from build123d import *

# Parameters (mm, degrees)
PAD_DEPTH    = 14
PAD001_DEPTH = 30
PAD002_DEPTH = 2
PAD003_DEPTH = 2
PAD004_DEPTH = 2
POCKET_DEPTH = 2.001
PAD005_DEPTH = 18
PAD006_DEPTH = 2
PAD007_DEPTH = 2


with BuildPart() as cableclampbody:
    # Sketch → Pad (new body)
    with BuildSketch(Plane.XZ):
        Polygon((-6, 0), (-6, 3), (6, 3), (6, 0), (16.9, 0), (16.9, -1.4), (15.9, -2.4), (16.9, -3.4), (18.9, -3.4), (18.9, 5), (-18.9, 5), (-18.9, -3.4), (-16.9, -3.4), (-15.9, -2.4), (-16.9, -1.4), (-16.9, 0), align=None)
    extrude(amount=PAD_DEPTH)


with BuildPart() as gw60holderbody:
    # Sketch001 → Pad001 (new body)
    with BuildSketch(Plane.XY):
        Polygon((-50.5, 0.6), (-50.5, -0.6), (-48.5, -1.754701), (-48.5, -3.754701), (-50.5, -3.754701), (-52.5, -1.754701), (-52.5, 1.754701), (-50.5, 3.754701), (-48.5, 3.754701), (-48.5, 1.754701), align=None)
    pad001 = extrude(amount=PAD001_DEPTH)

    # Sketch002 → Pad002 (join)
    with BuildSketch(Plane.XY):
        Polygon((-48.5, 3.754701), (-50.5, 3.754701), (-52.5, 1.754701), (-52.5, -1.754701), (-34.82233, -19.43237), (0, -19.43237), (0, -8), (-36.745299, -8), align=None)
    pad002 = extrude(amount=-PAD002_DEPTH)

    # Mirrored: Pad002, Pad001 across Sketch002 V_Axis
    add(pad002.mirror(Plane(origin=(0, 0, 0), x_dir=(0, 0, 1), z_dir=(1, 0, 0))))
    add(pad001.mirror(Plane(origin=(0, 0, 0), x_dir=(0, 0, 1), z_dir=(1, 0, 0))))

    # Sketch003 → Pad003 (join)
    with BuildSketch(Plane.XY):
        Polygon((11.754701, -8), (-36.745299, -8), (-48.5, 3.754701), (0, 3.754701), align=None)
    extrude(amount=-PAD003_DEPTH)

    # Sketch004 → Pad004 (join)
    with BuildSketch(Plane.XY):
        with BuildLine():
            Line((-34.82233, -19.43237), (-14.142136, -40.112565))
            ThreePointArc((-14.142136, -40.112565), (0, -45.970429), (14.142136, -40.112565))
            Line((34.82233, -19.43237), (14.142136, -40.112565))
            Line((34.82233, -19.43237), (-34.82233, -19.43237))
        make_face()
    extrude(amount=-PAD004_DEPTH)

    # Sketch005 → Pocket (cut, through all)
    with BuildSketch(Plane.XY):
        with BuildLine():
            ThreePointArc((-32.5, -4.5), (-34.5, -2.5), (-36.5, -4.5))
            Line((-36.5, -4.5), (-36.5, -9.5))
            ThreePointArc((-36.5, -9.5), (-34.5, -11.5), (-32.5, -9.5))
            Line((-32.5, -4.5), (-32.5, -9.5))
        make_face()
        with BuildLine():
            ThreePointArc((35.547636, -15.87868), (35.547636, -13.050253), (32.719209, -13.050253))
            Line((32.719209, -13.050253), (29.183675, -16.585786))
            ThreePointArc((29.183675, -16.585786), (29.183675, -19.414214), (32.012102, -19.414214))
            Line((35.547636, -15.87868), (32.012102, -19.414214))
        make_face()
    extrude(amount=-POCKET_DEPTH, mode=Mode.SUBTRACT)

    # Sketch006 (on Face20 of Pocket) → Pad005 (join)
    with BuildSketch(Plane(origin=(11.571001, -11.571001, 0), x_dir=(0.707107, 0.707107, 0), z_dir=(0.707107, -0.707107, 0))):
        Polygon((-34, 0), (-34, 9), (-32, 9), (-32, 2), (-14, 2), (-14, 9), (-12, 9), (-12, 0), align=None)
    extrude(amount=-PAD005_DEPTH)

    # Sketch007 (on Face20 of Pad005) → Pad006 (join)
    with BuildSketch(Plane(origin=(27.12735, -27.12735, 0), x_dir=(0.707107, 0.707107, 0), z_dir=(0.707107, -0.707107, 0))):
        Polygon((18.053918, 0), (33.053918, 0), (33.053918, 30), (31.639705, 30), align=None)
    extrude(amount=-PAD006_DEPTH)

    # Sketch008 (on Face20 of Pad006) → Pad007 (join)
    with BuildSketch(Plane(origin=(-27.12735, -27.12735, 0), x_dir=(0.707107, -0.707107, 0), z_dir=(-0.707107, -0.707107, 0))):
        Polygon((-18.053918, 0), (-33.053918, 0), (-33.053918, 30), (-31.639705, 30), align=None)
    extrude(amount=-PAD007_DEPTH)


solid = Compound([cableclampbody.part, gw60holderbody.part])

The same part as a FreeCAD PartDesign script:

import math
import FreeCAD as App
import Part
import Sketcher
from FreeCAD import Vector
Q = App.Units.Quantity

doc = App.newDocument("Part")
body = doc.addObject("PartDesign::Body", "Body")

# Sketch on XZ plane
sketch1 = doc.addObject("Sketcher::SketchObject", "Sketch")
body.addObject(sketch1)
sketch1.AttachmentSupport = (doc.XZ_Plane, [""])
sketch1.MapMode = "FlatFace"
sketch1.addGeometry([
    Part.LineSegment(Vector(-6, 0, 0), Vector(-6, 3, 0)),  # 0
    Part.LineSegment(Vector(-6, 3, 0), Vector(6, 3, 0)),  # 1
    Part.LineSegment(Vector(6, 3, 0), Vector(6, 0, 0)),  # 2
    Part.LineSegment(Vector(6, 0, 0), Vector(16.9, 0, 0)),  # 3
    Part.LineSegment(Vector(16.9, 0, 0), Vector(16.9, -1.4, 0)),  # 4
    Part.LineSegment(Vector(16.9, -1.4, 0), Vector(15.9, -2.4, 0)),  # 5
    Part.LineSegment(Vector(15.9, -2.4, 0), Vector(16.9, -3.4, 0)),  # 6
    Part.LineSegment(Vector(16.9, -3.4, 0), Vector(18.9, -3.4, 0)),  # 7
    Part.LineSegment(Vector(18.9, -3.4, 0), Vector(18.9, 5, 0)),  # 8
    Part.LineSegment(Vector(18.9, 5, 0), Vector(-18.9, 5, 0)),  # 9
    Part.LineSegment(Vector(-18.9, 5, 0), Vector(-18.9, -3.4, 0)),  # 10
    Part.LineSegment(Vector(-18.9, -3.4, 0), Vector(-16.9, -3.4, 0)),  # 11
    Part.LineSegment(Vector(-16.9, -3.4, 0), Vector(-15.9, -2.4, 0)),  # 12
    Part.LineSegment(Vector(-15.9, -2.4, 0), Vector(-16.9, -1.4, 0)),  # 13
    Part.LineSegment(Vector(-16.9, -1.4, 0), Vector(-16.9, 0, 0)),  # 14
    Part.LineSegment(Vector(-16.9, 0, 0), Vector(-6, 0, 0)),  # 15
], False)
sketch1.addConstraint([
    Sketcher.Constraint("Coincident", 0, 2, 1, 1),
    Sketcher.Constraint("Coincident", 1, 2, 2, 1),
    Sketcher.Constraint("Coincident", 2, 2, 3, 1),
    Sketcher.Constraint("Coincident", 3, 2, 4, 1),
    Sketcher.Constraint("Coincident", 4, 2, 5, 1),
    Sketcher.Constraint("Coincident", 5, 2, 6, 1),
    Sketcher.Constraint("Coincident", 6, 2, 7, 1),
    Sketcher.Constraint("Coincident", 7, 2, 8, 1),
    Sketcher.Constraint("Coincident", 8, 2, 9, 1),
    Sketcher.Constraint("Coincident", 9, 2, 10, 1),
    Sketcher.Constraint("Coincident", 10, 2, 11, 1),
    Sketcher.Constraint("Coincident", 11, 2, 12, 1),
    Sketcher.Constraint("Coincident", 12, 2, 13, 1),
    Sketcher.Constraint("Coincident", 13, 2, 14, 1),
    Sketcher.Constraint("Coincident", 14, 2, 15, 1),
    Sketcher.Constraint("Coincident", 15, 2, 0, 1),
    Sketcher.Constraint("Vertical", 0),
    Sketcher.Constraint("Horizontal", 1),
    Sketcher.Constraint("Vertical", 2),
    Sketcher.Constraint("Horizontal", 3),
    Sketcher.Constraint("Vertical", 4),
    Sketcher.Constraint("Horizontal", 7),
    Sketcher.Constraint("Vertical", 8),
    Sketcher.Constraint("Horizontal", 9),
    Sketcher.Constraint("Vertical", 10),
    Sketcher.Constraint("Horizontal", 11),
    Sketcher.Constraint("Vertical", 14),
    Sketcher.Constraint("Horizontal", 15),
    Sketcher.Constraint("Symmetric", 3, 2, 14, 2, -1, 1),
    Sketcher.Constraint("Symmetric", 7, 2, 10, 2, -2),
    Sketcher.Constraint("Symmetric", 5, 2, 12, 2, -2),
    Sketcher.Constraint("Symmetric", 2, 2, 15, 2, -2),
    Sketcher.Constraint("Perpendicular", 5, 6),
    Sketcher.Constraint("Perpendicular", 6, 12),
    Sketcher.Constraint("Perpendicular", 12, 13),
    Sketcher.Constraint("Horizontal", 4, 2, 13, 2),
    Sketcher.Constraint("Vertical", 4, 2, 6, 2),
    Sketcher.Constraint("DistanceX", 1, 1, 1, 2, Q("12 mm")),
    Sketcher.Constraint("DistanceX", 7, 1, 7, 2, Q("2 mm")),
    Sketcher.Constraint("DistanceY", 0, 1, 0, 2, Q("3 mm")),
    Sketcher.Constraint("DistanceX", 3, 1, 3, 2, Q("10.9 mm")),
    Sketcher.Constraint("DistanceY", 4, 2, 4, 1, Q("1.4 mm")),
    Sketcher.Constraint("DistanceY", 8, 1, 8, 2, Q("8.4 mm")),
    Sketcher.Constraint("DistanceY", -1, 1, 8, 2, Q("5 mm")),
])
pad1 = doc.addObject("PartDesign::Pad", "Pad")
body.addObject(pad1)
pad1.Profile = sketch1
pad1.Length = 14
body2 = doc.addObject("PartDesign::Body", "Body001")

# Sketch on XY plane
sketch2 = doc.addObject("Sketcher::SketchObject", "Sketch001")
body2.addObject(sketch2)
sketch2.AttachmentSupport = (doc.getObject("XY_Plane001"), [""])
sketch2.MapMode = "FlatFace"
sketch2.addGeometry([
    Part.LineSegment(Vector(-50.5, -0.6, 0), Vector(-50.5, 0.6, 0)),  # 0
    Part.LineSegment(Vector(-50.5, 0.6, 0), Vector(-48.5, 1.754701, 0)),  # 1
    Part.LineSegment(Vector(-48.5, 1.754701, 0), Vector(-48.5, 3.754701, 0)),  # 2
    Part.LineSegment(Vector(-48.5, 3.754701, 0), Vector(-50.5, 3.754701, 0)),  # 3
    Part.LineSegment(Vector(-50.5, 3.754701, 0), Vector(-52.5, 1.754701, 0)),  # 4
    Part.LineSegment(Vector(-52.5, 1.754701, 0), Vector(-52.5, -1.754701, 0)),  # 5
    Part.LineSegment(Vector(-52.5, -1.754701, 0), Vector(-50.5, -3.754701, 0)),  # 6
    Part.LineSegment(Vector(-50.5, -3.754701, 0), Vector(-48.5, -3.754701, 0)),  # 7
    Part.LineSegment(Vector(-48.5, -3.754701, 0), Vector(-48.5, -1.754701, 0)),  # 8
    Part.LineSegment(Vector(-48.5, -1.754701, 0), Vector(-50.5, -0.6, 0)),  # 9
], False)
sketch2.addConstraint([
    Sketcher.Constraint("Coincident", 0, 2, 1, 1),
    Sketcher.Constraint("Coincident", 1, 2, 2, 1),
    Sketcher.Constraint("Coincident", 2, 2, 3, 1),
    Sketcher.Constraint("Coincident", 3, 2, 4, 1),
    Sketcher.Constraint("Coincident", 4, 2, 5, 1),
    Sketcher.Constraint("Coincident", 5, 2, 6, 1),
    Sketcher.Constraint("Coincident", 6, 2, 7, 1),
    Sketcher.Constraint("Coincident", 7, 2, 8, 1),
    Sketcher.Constraint("Coincident", 8, 2, 9, 1),
    Sketcher.Constraint("Coincident", 9, 2, 0, 1),
    Sketcher.Constraint("Vertical", 0),
    Sketcher.Constraint("Vertical", 2),
    Sketcher.Constraint("Horizontal", 3),
    Sketcher.Constraint("Vertical", 5),
    Sketcher.Constraint("Horizontal", 7),
    Sketcher.Constraint("Vertical", 8),
    Sketcher.Constraint("Symmetric", 3, 2, 6, 2, -1),
    Sketcher.Constraint("Symmetric", 1, 2, 8, 2, -1),
    Sketcher.Constraint("Perpendicular", 4, 6),
    Sketcher.Constraint("Horizontal", 1, 2, 4, 2),
    Sketcher.Constraint("Horizontal", 5, 2, 8, 2),
    Sketcher.Constraint("Vertical", 0, 2, 3, 2),
    Sketcher.Constraint("Equal", 7, 2),
    Sketcher.Constraint("Equal", 1, 9),
    Sketcher.Constraint("DistanceX", 3, 2, 3, 1, Q("2 mm")),
    Sketcher.Constraint("Angle", 1, Q("30.00001 deg")),
    Sketcher.Constraint("DistanceY", 0, 1, 0, 2, Q("1.2 mm")),
    Sketcher.Constraint("DistanceX", 0, 2, -1, 1, Q("50.5 mm")),
])
pad2 = doc.addObject("PartDesign::Pad", "Pad001")
body2.addObject(pad2)
pad2.Profile = sketch2
pad2.Length = 30

# Sketch on XY plane
sketch3 = doc.addObject("Sketcher::SketchObject", "Sketch002")
body2.addObject(sketch3)
sketch3.AttachmentSupport = (doc.getObject("XY_Plane001"), [""])
sketch3.MapMode = "FlatFace"
sketch3.addGeometry([
    Part.LineSegment(Vector(-48.5, 3.754701, 0), Vector(-50.5, 3.754701, 0)),  # 0
    Part.LineSegment(Vector(-50.5, 3.754701, 0), Vector(-52.5, 1.754701, 0)),  # 1
    Part.LineSegment(Vector(-52.5, 1.754701, 0), Vector(-52.5, -1.754701, 0)),  # 2
    Part.LineSegment(Vector(-52.5, -1.754701, 0), Vector(-34.82233, -19.43237, 0)),  # 3
    Part.LineSegment(Vector(-34.82233, -19.43237, 0), Vector(0, -19.43237, 0)),  # 4
    Part.LineSegment(Vector(0, -19.43237, 0), Vector(0, -8, 0)),  # 5
    Part.LineSegment(Vector(0, -8, 0), Vector(-36.745299, -8, 0)),  # 6
    Part.LineSegment(Vector(-36.745299, -8, 0), Vector(-48.5, 3.754701, 0)),  # 7
], False)
sketch3.addConstraint([
    Sketcher.Constraint("Coincident", 0, 2, 1, 1),
    Sketcher.Constraint("Coincident", 1, 2, 2, 1),
    Sketcher.Constraint("Coincident", 2, 2, 3, 1),
    Sketcher.Constraint("Coincident", 3, 2, 4, 1),
    Sketcher.Constraint("Coincident", 4, 2, 5, 1),
    Sketcher.Constraint("Coincident", 5, 2, 6, 1),
    Sketcher.Constraint("Coincident", 6, 2, 7, 1),
    Sketcher.Constraint("Coincident", 7, 2, 0, 1),
    Sketcher.Constraint("Horizontal", 0),
    Sketcher.Constraint("Vertical", 2),
    Sketcher.Constraint("Horizontal", 4),
    Sketcher.Constraint("Vertical", 5),
    Sketcher.Constraint("Horizontal", 6),
    Sketcher.Constraint("PointOnObject", 4, 2, -2),
    Sketcher.Constraint("Perpendicular", 1, 3),
    Sketcher.Constraint("Parallel", 3, 7),
    Sketcher.Constraint("DistanceX", 0, 2, 0, 1, Q("2 mm")),
    Sketcher.Constraint("Angle", 1, Q("-135 deg")),
    Sketcher.Constraint("Distance", 3, Q("25 mm")),
    Sketcher.Constraint("DistanceY", 5, 2, -1, 1, Q("8 mm")),
    Sketcher.Constraint("DistanceX", 1, 2, 0, 2, Q("2 mm")),
    Sketcher.Constraint("DistanceX", 0, 2, -1, 1, Q("50.5 mm")),
    Sketcher.Constraint("DistanceX", 6, 2, 6, 1, Q("36.745299 mm")),
    Sketcher.Constraint("DistanceY", 5, 1, 5, 2, Q("11.43237 mm")),
])
pad3 = doc.addObject("PartDesign::Pad", "Pad002")
body2.addObject(pad3)
pad3.Profile = sketch3
pad3.Length = 2
pad3.Reversed = True
doc.recompute()

mirrored = doc.addObject("PartDesign::Mirrored", "Mirrored")
body2.addObject(mirrored)
mirrored.Originals = [pad3, pad2]
mirrored.MirrorPlane = (doc.getObject("YZ_Plane001"), [""])
body2.Tip = mirrored

# Sketch on XY plane
sketch4 = doc.addObject("Sketcher::SketchObject", "Sketch003")
body2.addObject(sketch4)
sketch4.AttachmentSupport = (doc.getObject("XY_Plane001"), [""])
sketch4.MapMode = "FlatFace"
sketch4.addGeometry([
    Part.LineSegment(Vector(-36.745299, -8, 0), Vector(11.754701, -8, 0)),
    Part.LineSegment(Vector(11.754701, -8, 0), Vector(0, 3.754701, 0)),
    Part.LineSegment(Vector(0, 3.754701, 0), Vector(-48.5, 3.754701, 0)),
    Part.LineSegment(Vector(-48.5, 3.754701, 0), Vector(-36.745299, -8, 0)),
], False)
sketch4.addConstraint([
    Sketcher.Constraint("Coincident", 0, 2, 1, 1),
    Sketcher.Constraint("Coincident", 1, 2, 2, 1),
    Sketcher.Constraint("Coincident", 2, 2, 3, 1),
    Sketcher.Constraint("Coincident", 3, 2, 0, 1),
    Sketcher.Constraint("Horizontal", 0),
    Sketcher.Constraint("Horizontal", 2),
    Sketcher.Constraint("PointOnObject", 1, 2, -2),
    Sketcher.Constraint("Parallel", 1, 3),
    Sketcher.Constraint("Angle", 1, Q("135 deg")),
    Sketcher.Constraint("DistanceX", 0, 1, 0, 2, Q("48.5 mm")),
    Sketcher.Constraint("DistanceY", 0, 2, -1, 1, Q("8 mm")),
    Sketcher.Constraint("DistanceX", -1, 1, 0, 2, Q("11.754701 mm")),
])
pad4 = doc.addObject("PartDesign::Pad", "Pad003")
body2.addObject(pad4)
pad4.Profile = sketch4
pad4.Length = 2
pad4.Reversed = True

# Sketch on XY plane
sketch5 = doc.addObject("Sketcher::SketchObject", "Sketch004")
body2.addObject(sketch5)
sketch5.AttachmentSupport = (doc.getObject("XY_Plane001"), [""])
sketch5.MapMode = "FlatFace"
sketch5.addGeometry([
    Part.LineSegment(Vector(-34.82233, -19.43237, 0), Vector(-14.142136, -40.112565, 0)),
    Part.ArcOfCircle(Part.Circle(Vector(0, -25.970427, 0), Vector(0, 0, 1), 20.000002), math.radians(-134.999996), math.radians(-45.000004)),
    Part.LineSegment(Vector(14.142136, -40.112565, 0), Vector(34.82233, -19.43237, 0)),
    Part.LineSegment(Vector(34.82233, -19.43237, 0), Vector(-34.82233, -19.43237, 0)),
], False)
sketch5.addConstraint([
    Sketcher.Constraint("Tangent", 0, 2, 1, 1),
    Sketcher.Constraint("Tangent", 1, 2, 2, 1),
    Sketcher.Constraint("Coincident", 2, 2, 3, 1),
    Sketcher.Constraint("Coincident", 3, 2, 0, 1),
    Sketcher.Constraint("Horizontal", 3),
    Sketcher.Constraint("Symmetric", 0, 2, 1, 2, -2),
    Sketcher.Constraint("Perpendicular", 0, 2),
    Sketcher.Constraint("Radius", 1, Q("20.000002 mm")),
    Sketcher.Constraint("DistanceX", 3, 2, 3, 1, Q("69.64466 mm")),
    Sketcher.Constraint("DistanceY", 2, 2, -1, 1, Q("19.43237 mm")),
])
pad5 = doc.addObject("PartDesign::Pad", "Pad004")
body2.addObject(pad5)
pad5.Profile = sketch5
pad5.Length = 2
pad5.Reversed = True

# Sketch on XY plane
sketch6 = doc.addObject("Sketcher::SketchObject", "Sketch005")
body2.addObject(sketch6)
sketch6.AttachmentSupport = (doc.getObject("XY_Plane001"), [""])
sketch6.MapMode = "FlatFace"
sketch6.addGeometry([
    Part.ArcOfCircle(Part.Circle(Vector(-34.5, -4.5, 0), Vector(0, 0, 1), 2), math.radians(0), math.radians(180)),  # 0
    Part.LineSegment(Vector(-36.5, -4.5, 0), Vector(-36.5, -9.5, 0)),  # 1
    Part.ArcOfCircle(Part.Circle(Vector(-34.5, -9.5, 0), Vector(0, 0, 1), 2), math.radians(180), math.radians(360)),  # 2
    Part.LineSegment(Vector(-32.5, -9.5, 0), Vector(-32.5, -4.5, 0)),  # 3
    Part.ArcOfCircle(Part.Circle(Vector(34.133423, -14.464467, 0), Vector(0, 0, 1), 2), math.radians(-45), math.radians(135)),  # 4
    Part.LineSegment(Vector(32.719209, -13.050253, 0), Vector(29.183675, -16.585786, 0)),  # 5
    Part.ArcOfCircle(Part.Circle(Vector(30.597888, -18, 0), Vector(0, 0, 1), 2), math.radians(134.99999), math.radians(314.99999)),  # 6
    Part.LineSegment(Vector(32.012102, -19.414214, 0), Vector(35.547636, -15.87868, 0)),  # 7
], False)
sketch6.addConstraint([
    Sketcher.Constraint("Tangent", 0, 2, 1, 1),
    Sketcher.Constraint("Tangent", 1, 2, 2, 1),
    Sketcher.Constraint("Tangent", 2, 2, 3, 1),
    Sketcher.Constraint("Tangent", 3, 2, 0, 1),
    Sketcher.Constraint("Tangent", 4, 2, 5, 1),
    Sketcher.Constraint("Tangent", 5, 2, 6, 1),
    Sketcher.Constraint("Tangent", 6, 2, 7, 1),
    Sketcher.Constraint("Tangent", 7, 2, 4, 1),
    Sketcher.Constraint("Vertical", 1),
    Sketcher.Constraint("Vertical", 3),
    Sketcher.Constraint("Equal", 2, 4),
    Sketcher.Constraint("Equal", 4, 6),
    Sketcher.Constraint("Radius", 0, Q("2 mm")),
    Sketcher.Constraint("DistanceY", 1, 2, 1, 1, Q("5 mm")),
    Sketcher.Constraint("Angle", 5, Q("-135.000008 deg")),
    Sketcher.Constraint("Distance", 5, Q("4.999999 mm")),
    Sketcher.Constraint("DistanceY", 6, 3, -1, 1, Q("18 mm")),
    Sketcher.Constraint("DistanceX", 0, 3, -1, 1, Q("34.5 mm")),
    Sketcher.Constraint("DistanceY", 0, 3, -1, 1, Q("4.5 mm")),
    Sketcher.Constraint("DistanceX", -1, 1, 6, 2, Q("32.012102 mm")),
])
pocket1 = doc.addObject("PartDesign::Pocket", "Pocket")
body2.addObject(pocket1)
pocket1.Profile = sketch6
pocket1.Type = "ThroughAll"

# Sketch on an angled plane
sketch7 = doc.addObject("Sketcher::SketchObject", "Sketch006")
body2.addObject(sketch7)
sketch7.Placement = App.Placement(Vector(11.571001, -11.571001, 0), App.Rotation(Vector(0.707106781, 0.707106781, 0), Vector(0, 0, 0.999999999), Vector(0.707106781, -0.707106781, 0), "ZXY"))
sketch7.addGeometry([
    Part.LineSegment(Vector(-34, 9, 0), Vector(-34, 0, 0)),  # 0
    Part.LineSegment(Vector(-34, 0, 0), Vector(-12, 0, 0)),  # 1
    Part.LineSegment(Vector(-12, 0, 0), Vector(-12, 9, 0)),  # 2
    Part.LineSegment(Vector(-12, 9, 0), Vector(-14, 9, 0)),  # 3
    Part.LineSegment(Vector(-14, 9, 0), Vector(-14, 2, 0)),  # 4
    Part.LineSegment(Vector(-14, 2, 0), Vector(-32, 2, 0)),  # 5
    Part.LineSegment(Vector(-32, 2, 0), Vector(-32, 9, 0)),  # 6
    Part.LineSegment(Vector(-32, 9, 0), Vector(-34, 9, 0)),  # 7
], False)
sketch7.addConstraint([
    Sketcher.Constraint("Coincident", 0, 2, 1, 1),
    Sketcher.Constraint("Coincident", 1, 2, 2, 1),
    Sketcher.Constraint("Coincident", 2, 2, 3, 1),
    Sketcher.Constraint("Coincident", 3, 2, 4, 1),
    Sketcher.Constraint("Coincident", 4, 2, 5, 1),
    Sketcher.Constraint("Coincident", 5, 2, 6, 1),
    Sketcher.Constraint("Coincident", 6, 2, 7, 1),
    Sketcher.Constraint("Coincident", 7, 2, 0, 1),
    Sketcher.Constraint("Vertical", 0),
    Sketcher.Constraint("Horizontal", 1),
    Sketcher.Constraint("Vertical", 2),
    Sketcher.Constraint("Horizontal", 3),
    Sketcher.Constraint("Vertical", 4),
    Sketcher.Constraint("Horizontal", 5),
    Sketcher.Constraint("Vertical", 6),
    Sketcher.Constraint("Horizontal", 7),
    Sketcher.Constraint("PointOnObject", 0, 2, -1),
    Sketcher.Constraint("Horizontal", 3, 2, 6, 2),
    Sketcher.Constraint("Equal", 3, 7),
    Sketcher.Constraint("DistanceX", 1, 1, 1, 2, Q("22 mm")),
    Sketcher.Constraint("DistanceX", 3, 2, 3, 1, Q("2 mm")),
    Sketcher.Constraint("DistanceY", 0, 2, 0, 1, Q("9 mm")),
    Sketcher.Constraint("DistanceY", 4, 2, 4, 1, Q("7 mm")),
    Sketcher.Constraint("DistanceX", 0, 2, -1, 1, Q("34 mm")),
])
pad6 = doc.addObject("PartDesign::Pad", "Pad005")
body2.addObject(pad6)
pad6.Profile = sketch7
pad6.Length = 18
pad6.Reversed = True

# Sketch on an angled plane
sketch8 = doc.addObject("Sketcher::SketchObject", "Sketch007")
body2.addObject(sketch8)
sketch8.Placement = App.Placement(Vector(27.12735, -27.12735, 0), App.Rotation(Vector(0.707106781, 0.707106781, 0), Vector(0, 0, 0.999999999), Vector(0.707106781, -0.707106781, 0), "ZXY"))
sketch8.addGeometry([
    Part.LineSegment(Vector(18.053918, 0, 0), Vector(33.053918, 0, 0)),
    Part.LineSegment(Vector(33.053918, 0, 0), Vector(33.053918, 30, 0)),
    Part.LineSegment(Vector(33.053918, 30, 0), Vector(31.639705, 30, 0)),
    Part.LineSegment(Vector(31.639705, 30, 0), Vector(18.053918, 0, 0)),
], False)
sketch8.addConstraint([
    Sketcher.Constraint("Coincident", 0, 2, 1, 1),
    Sketcher.Constraint("Coincident", 1, 2, 2, 1),
    Sketcher.Constraint("Coincident", 2, 2, 3, 1),
    Sketcher.Constraint("Coincident", 3, 2, 0, 1),
    Sketcher.Constraint("Horizontal", 0),
    Sketcher.Constraint("Vertical", 1),
    Sketcher.Constraint("Horizontal", 2),
    Sketcher.Constraint("PointOnObject", 0, 2, -1),
    Sketcher.Constraint("DistanceX", 0, 1, 0, 2, Q("15 mm")),
    Sketcher.Constraint("DistanceY", 1, 1, 1, 2, Q("30 mm")),
    Sketcher.Constraint("DistanceX", 2, 2, 2, 1, Q("1.414213 mm")),
    Sketcher.Constraint("DistanceX", -1, 1, 0, 2, Q("33.053918 mm")),
])
pad7 = doc.addObject("PartDesign::Pad", "Pad006")
body2.addObject(pad7)
pad7.Profile = sketch8
pad7.Length = 2
pad7.Reversed = True

# Sketch on an angled plane
sketch9 = doc.addObject("Sketcher::SketchObject", "Sketch008")
body2.addObject(sketch9)
sketch9.Placement = App.Placement(Vector(-27.12735, -27.12735, 0), App.Rotation(Vector(0.707106781, -0.707106781, 0), Vector(0, 0, 0.999999999), Vector(-0.707106781, -0.707106781, 0), "ZXY"))
sketch9.addGeometry([
    Part.LineSegment(Vector(-33.053918, 0, 0), Vector(-18.053918, 0, 0)),
    Part.LineSegment(Vector(-18.053918, 0, 0), Vector(-31.639705, 30, 0)),
    Part.LineSegment(Vector(-31.639705, 30, 0), Vector(-33.053918, 30, 0)),
    Part.LineSegment(Vector(-33.053918, 30, 0), Vector(-33.053918, 0, 0)),
], False)
sketch9.addConstraint([
    Sketcher.Constraint("Coincident", 0, 2, 1, 1),
    Sketcher.Constraint("Coincident", 1, 2, 2, 1),
    Sketcher.Constraint("Coincident", 2, 2, 3, 1),
    Sketcher.Constraint("Coincident", 3, 2, 0, 1),
    Sketcher.Constraint("Horizontal", 0),
    Sketcher.Constraint("Horizontal", 2),
    Sketcher.Constraint("Vertical", 3),
    Sketcher.Constraint("PointOnObject", 0, 2, -1),
    Sketcher.Constraint("DistanceX", 0, 1, 0, 2, Q("15 mm")),
    Sketcher.Constraint("DistanceY", 3, 2, 3, 1, Q("30 mm")),
    Sketcher.Constraint("DistanceX", 2, 2, 2, 1, Q("1.414213 mm")),
    Sketcher.Constraint("DistanceX", 0, 2, -1, 1, Q("18.053918 mm")),
])
pad8 = doc.addObject("PartDesign::Pad", "Pad007")
body2.addObject(pad8)
pad8.Profile = sketch9
pad8.Length = 2
pad8.Reversed = True

doc.recompute()
